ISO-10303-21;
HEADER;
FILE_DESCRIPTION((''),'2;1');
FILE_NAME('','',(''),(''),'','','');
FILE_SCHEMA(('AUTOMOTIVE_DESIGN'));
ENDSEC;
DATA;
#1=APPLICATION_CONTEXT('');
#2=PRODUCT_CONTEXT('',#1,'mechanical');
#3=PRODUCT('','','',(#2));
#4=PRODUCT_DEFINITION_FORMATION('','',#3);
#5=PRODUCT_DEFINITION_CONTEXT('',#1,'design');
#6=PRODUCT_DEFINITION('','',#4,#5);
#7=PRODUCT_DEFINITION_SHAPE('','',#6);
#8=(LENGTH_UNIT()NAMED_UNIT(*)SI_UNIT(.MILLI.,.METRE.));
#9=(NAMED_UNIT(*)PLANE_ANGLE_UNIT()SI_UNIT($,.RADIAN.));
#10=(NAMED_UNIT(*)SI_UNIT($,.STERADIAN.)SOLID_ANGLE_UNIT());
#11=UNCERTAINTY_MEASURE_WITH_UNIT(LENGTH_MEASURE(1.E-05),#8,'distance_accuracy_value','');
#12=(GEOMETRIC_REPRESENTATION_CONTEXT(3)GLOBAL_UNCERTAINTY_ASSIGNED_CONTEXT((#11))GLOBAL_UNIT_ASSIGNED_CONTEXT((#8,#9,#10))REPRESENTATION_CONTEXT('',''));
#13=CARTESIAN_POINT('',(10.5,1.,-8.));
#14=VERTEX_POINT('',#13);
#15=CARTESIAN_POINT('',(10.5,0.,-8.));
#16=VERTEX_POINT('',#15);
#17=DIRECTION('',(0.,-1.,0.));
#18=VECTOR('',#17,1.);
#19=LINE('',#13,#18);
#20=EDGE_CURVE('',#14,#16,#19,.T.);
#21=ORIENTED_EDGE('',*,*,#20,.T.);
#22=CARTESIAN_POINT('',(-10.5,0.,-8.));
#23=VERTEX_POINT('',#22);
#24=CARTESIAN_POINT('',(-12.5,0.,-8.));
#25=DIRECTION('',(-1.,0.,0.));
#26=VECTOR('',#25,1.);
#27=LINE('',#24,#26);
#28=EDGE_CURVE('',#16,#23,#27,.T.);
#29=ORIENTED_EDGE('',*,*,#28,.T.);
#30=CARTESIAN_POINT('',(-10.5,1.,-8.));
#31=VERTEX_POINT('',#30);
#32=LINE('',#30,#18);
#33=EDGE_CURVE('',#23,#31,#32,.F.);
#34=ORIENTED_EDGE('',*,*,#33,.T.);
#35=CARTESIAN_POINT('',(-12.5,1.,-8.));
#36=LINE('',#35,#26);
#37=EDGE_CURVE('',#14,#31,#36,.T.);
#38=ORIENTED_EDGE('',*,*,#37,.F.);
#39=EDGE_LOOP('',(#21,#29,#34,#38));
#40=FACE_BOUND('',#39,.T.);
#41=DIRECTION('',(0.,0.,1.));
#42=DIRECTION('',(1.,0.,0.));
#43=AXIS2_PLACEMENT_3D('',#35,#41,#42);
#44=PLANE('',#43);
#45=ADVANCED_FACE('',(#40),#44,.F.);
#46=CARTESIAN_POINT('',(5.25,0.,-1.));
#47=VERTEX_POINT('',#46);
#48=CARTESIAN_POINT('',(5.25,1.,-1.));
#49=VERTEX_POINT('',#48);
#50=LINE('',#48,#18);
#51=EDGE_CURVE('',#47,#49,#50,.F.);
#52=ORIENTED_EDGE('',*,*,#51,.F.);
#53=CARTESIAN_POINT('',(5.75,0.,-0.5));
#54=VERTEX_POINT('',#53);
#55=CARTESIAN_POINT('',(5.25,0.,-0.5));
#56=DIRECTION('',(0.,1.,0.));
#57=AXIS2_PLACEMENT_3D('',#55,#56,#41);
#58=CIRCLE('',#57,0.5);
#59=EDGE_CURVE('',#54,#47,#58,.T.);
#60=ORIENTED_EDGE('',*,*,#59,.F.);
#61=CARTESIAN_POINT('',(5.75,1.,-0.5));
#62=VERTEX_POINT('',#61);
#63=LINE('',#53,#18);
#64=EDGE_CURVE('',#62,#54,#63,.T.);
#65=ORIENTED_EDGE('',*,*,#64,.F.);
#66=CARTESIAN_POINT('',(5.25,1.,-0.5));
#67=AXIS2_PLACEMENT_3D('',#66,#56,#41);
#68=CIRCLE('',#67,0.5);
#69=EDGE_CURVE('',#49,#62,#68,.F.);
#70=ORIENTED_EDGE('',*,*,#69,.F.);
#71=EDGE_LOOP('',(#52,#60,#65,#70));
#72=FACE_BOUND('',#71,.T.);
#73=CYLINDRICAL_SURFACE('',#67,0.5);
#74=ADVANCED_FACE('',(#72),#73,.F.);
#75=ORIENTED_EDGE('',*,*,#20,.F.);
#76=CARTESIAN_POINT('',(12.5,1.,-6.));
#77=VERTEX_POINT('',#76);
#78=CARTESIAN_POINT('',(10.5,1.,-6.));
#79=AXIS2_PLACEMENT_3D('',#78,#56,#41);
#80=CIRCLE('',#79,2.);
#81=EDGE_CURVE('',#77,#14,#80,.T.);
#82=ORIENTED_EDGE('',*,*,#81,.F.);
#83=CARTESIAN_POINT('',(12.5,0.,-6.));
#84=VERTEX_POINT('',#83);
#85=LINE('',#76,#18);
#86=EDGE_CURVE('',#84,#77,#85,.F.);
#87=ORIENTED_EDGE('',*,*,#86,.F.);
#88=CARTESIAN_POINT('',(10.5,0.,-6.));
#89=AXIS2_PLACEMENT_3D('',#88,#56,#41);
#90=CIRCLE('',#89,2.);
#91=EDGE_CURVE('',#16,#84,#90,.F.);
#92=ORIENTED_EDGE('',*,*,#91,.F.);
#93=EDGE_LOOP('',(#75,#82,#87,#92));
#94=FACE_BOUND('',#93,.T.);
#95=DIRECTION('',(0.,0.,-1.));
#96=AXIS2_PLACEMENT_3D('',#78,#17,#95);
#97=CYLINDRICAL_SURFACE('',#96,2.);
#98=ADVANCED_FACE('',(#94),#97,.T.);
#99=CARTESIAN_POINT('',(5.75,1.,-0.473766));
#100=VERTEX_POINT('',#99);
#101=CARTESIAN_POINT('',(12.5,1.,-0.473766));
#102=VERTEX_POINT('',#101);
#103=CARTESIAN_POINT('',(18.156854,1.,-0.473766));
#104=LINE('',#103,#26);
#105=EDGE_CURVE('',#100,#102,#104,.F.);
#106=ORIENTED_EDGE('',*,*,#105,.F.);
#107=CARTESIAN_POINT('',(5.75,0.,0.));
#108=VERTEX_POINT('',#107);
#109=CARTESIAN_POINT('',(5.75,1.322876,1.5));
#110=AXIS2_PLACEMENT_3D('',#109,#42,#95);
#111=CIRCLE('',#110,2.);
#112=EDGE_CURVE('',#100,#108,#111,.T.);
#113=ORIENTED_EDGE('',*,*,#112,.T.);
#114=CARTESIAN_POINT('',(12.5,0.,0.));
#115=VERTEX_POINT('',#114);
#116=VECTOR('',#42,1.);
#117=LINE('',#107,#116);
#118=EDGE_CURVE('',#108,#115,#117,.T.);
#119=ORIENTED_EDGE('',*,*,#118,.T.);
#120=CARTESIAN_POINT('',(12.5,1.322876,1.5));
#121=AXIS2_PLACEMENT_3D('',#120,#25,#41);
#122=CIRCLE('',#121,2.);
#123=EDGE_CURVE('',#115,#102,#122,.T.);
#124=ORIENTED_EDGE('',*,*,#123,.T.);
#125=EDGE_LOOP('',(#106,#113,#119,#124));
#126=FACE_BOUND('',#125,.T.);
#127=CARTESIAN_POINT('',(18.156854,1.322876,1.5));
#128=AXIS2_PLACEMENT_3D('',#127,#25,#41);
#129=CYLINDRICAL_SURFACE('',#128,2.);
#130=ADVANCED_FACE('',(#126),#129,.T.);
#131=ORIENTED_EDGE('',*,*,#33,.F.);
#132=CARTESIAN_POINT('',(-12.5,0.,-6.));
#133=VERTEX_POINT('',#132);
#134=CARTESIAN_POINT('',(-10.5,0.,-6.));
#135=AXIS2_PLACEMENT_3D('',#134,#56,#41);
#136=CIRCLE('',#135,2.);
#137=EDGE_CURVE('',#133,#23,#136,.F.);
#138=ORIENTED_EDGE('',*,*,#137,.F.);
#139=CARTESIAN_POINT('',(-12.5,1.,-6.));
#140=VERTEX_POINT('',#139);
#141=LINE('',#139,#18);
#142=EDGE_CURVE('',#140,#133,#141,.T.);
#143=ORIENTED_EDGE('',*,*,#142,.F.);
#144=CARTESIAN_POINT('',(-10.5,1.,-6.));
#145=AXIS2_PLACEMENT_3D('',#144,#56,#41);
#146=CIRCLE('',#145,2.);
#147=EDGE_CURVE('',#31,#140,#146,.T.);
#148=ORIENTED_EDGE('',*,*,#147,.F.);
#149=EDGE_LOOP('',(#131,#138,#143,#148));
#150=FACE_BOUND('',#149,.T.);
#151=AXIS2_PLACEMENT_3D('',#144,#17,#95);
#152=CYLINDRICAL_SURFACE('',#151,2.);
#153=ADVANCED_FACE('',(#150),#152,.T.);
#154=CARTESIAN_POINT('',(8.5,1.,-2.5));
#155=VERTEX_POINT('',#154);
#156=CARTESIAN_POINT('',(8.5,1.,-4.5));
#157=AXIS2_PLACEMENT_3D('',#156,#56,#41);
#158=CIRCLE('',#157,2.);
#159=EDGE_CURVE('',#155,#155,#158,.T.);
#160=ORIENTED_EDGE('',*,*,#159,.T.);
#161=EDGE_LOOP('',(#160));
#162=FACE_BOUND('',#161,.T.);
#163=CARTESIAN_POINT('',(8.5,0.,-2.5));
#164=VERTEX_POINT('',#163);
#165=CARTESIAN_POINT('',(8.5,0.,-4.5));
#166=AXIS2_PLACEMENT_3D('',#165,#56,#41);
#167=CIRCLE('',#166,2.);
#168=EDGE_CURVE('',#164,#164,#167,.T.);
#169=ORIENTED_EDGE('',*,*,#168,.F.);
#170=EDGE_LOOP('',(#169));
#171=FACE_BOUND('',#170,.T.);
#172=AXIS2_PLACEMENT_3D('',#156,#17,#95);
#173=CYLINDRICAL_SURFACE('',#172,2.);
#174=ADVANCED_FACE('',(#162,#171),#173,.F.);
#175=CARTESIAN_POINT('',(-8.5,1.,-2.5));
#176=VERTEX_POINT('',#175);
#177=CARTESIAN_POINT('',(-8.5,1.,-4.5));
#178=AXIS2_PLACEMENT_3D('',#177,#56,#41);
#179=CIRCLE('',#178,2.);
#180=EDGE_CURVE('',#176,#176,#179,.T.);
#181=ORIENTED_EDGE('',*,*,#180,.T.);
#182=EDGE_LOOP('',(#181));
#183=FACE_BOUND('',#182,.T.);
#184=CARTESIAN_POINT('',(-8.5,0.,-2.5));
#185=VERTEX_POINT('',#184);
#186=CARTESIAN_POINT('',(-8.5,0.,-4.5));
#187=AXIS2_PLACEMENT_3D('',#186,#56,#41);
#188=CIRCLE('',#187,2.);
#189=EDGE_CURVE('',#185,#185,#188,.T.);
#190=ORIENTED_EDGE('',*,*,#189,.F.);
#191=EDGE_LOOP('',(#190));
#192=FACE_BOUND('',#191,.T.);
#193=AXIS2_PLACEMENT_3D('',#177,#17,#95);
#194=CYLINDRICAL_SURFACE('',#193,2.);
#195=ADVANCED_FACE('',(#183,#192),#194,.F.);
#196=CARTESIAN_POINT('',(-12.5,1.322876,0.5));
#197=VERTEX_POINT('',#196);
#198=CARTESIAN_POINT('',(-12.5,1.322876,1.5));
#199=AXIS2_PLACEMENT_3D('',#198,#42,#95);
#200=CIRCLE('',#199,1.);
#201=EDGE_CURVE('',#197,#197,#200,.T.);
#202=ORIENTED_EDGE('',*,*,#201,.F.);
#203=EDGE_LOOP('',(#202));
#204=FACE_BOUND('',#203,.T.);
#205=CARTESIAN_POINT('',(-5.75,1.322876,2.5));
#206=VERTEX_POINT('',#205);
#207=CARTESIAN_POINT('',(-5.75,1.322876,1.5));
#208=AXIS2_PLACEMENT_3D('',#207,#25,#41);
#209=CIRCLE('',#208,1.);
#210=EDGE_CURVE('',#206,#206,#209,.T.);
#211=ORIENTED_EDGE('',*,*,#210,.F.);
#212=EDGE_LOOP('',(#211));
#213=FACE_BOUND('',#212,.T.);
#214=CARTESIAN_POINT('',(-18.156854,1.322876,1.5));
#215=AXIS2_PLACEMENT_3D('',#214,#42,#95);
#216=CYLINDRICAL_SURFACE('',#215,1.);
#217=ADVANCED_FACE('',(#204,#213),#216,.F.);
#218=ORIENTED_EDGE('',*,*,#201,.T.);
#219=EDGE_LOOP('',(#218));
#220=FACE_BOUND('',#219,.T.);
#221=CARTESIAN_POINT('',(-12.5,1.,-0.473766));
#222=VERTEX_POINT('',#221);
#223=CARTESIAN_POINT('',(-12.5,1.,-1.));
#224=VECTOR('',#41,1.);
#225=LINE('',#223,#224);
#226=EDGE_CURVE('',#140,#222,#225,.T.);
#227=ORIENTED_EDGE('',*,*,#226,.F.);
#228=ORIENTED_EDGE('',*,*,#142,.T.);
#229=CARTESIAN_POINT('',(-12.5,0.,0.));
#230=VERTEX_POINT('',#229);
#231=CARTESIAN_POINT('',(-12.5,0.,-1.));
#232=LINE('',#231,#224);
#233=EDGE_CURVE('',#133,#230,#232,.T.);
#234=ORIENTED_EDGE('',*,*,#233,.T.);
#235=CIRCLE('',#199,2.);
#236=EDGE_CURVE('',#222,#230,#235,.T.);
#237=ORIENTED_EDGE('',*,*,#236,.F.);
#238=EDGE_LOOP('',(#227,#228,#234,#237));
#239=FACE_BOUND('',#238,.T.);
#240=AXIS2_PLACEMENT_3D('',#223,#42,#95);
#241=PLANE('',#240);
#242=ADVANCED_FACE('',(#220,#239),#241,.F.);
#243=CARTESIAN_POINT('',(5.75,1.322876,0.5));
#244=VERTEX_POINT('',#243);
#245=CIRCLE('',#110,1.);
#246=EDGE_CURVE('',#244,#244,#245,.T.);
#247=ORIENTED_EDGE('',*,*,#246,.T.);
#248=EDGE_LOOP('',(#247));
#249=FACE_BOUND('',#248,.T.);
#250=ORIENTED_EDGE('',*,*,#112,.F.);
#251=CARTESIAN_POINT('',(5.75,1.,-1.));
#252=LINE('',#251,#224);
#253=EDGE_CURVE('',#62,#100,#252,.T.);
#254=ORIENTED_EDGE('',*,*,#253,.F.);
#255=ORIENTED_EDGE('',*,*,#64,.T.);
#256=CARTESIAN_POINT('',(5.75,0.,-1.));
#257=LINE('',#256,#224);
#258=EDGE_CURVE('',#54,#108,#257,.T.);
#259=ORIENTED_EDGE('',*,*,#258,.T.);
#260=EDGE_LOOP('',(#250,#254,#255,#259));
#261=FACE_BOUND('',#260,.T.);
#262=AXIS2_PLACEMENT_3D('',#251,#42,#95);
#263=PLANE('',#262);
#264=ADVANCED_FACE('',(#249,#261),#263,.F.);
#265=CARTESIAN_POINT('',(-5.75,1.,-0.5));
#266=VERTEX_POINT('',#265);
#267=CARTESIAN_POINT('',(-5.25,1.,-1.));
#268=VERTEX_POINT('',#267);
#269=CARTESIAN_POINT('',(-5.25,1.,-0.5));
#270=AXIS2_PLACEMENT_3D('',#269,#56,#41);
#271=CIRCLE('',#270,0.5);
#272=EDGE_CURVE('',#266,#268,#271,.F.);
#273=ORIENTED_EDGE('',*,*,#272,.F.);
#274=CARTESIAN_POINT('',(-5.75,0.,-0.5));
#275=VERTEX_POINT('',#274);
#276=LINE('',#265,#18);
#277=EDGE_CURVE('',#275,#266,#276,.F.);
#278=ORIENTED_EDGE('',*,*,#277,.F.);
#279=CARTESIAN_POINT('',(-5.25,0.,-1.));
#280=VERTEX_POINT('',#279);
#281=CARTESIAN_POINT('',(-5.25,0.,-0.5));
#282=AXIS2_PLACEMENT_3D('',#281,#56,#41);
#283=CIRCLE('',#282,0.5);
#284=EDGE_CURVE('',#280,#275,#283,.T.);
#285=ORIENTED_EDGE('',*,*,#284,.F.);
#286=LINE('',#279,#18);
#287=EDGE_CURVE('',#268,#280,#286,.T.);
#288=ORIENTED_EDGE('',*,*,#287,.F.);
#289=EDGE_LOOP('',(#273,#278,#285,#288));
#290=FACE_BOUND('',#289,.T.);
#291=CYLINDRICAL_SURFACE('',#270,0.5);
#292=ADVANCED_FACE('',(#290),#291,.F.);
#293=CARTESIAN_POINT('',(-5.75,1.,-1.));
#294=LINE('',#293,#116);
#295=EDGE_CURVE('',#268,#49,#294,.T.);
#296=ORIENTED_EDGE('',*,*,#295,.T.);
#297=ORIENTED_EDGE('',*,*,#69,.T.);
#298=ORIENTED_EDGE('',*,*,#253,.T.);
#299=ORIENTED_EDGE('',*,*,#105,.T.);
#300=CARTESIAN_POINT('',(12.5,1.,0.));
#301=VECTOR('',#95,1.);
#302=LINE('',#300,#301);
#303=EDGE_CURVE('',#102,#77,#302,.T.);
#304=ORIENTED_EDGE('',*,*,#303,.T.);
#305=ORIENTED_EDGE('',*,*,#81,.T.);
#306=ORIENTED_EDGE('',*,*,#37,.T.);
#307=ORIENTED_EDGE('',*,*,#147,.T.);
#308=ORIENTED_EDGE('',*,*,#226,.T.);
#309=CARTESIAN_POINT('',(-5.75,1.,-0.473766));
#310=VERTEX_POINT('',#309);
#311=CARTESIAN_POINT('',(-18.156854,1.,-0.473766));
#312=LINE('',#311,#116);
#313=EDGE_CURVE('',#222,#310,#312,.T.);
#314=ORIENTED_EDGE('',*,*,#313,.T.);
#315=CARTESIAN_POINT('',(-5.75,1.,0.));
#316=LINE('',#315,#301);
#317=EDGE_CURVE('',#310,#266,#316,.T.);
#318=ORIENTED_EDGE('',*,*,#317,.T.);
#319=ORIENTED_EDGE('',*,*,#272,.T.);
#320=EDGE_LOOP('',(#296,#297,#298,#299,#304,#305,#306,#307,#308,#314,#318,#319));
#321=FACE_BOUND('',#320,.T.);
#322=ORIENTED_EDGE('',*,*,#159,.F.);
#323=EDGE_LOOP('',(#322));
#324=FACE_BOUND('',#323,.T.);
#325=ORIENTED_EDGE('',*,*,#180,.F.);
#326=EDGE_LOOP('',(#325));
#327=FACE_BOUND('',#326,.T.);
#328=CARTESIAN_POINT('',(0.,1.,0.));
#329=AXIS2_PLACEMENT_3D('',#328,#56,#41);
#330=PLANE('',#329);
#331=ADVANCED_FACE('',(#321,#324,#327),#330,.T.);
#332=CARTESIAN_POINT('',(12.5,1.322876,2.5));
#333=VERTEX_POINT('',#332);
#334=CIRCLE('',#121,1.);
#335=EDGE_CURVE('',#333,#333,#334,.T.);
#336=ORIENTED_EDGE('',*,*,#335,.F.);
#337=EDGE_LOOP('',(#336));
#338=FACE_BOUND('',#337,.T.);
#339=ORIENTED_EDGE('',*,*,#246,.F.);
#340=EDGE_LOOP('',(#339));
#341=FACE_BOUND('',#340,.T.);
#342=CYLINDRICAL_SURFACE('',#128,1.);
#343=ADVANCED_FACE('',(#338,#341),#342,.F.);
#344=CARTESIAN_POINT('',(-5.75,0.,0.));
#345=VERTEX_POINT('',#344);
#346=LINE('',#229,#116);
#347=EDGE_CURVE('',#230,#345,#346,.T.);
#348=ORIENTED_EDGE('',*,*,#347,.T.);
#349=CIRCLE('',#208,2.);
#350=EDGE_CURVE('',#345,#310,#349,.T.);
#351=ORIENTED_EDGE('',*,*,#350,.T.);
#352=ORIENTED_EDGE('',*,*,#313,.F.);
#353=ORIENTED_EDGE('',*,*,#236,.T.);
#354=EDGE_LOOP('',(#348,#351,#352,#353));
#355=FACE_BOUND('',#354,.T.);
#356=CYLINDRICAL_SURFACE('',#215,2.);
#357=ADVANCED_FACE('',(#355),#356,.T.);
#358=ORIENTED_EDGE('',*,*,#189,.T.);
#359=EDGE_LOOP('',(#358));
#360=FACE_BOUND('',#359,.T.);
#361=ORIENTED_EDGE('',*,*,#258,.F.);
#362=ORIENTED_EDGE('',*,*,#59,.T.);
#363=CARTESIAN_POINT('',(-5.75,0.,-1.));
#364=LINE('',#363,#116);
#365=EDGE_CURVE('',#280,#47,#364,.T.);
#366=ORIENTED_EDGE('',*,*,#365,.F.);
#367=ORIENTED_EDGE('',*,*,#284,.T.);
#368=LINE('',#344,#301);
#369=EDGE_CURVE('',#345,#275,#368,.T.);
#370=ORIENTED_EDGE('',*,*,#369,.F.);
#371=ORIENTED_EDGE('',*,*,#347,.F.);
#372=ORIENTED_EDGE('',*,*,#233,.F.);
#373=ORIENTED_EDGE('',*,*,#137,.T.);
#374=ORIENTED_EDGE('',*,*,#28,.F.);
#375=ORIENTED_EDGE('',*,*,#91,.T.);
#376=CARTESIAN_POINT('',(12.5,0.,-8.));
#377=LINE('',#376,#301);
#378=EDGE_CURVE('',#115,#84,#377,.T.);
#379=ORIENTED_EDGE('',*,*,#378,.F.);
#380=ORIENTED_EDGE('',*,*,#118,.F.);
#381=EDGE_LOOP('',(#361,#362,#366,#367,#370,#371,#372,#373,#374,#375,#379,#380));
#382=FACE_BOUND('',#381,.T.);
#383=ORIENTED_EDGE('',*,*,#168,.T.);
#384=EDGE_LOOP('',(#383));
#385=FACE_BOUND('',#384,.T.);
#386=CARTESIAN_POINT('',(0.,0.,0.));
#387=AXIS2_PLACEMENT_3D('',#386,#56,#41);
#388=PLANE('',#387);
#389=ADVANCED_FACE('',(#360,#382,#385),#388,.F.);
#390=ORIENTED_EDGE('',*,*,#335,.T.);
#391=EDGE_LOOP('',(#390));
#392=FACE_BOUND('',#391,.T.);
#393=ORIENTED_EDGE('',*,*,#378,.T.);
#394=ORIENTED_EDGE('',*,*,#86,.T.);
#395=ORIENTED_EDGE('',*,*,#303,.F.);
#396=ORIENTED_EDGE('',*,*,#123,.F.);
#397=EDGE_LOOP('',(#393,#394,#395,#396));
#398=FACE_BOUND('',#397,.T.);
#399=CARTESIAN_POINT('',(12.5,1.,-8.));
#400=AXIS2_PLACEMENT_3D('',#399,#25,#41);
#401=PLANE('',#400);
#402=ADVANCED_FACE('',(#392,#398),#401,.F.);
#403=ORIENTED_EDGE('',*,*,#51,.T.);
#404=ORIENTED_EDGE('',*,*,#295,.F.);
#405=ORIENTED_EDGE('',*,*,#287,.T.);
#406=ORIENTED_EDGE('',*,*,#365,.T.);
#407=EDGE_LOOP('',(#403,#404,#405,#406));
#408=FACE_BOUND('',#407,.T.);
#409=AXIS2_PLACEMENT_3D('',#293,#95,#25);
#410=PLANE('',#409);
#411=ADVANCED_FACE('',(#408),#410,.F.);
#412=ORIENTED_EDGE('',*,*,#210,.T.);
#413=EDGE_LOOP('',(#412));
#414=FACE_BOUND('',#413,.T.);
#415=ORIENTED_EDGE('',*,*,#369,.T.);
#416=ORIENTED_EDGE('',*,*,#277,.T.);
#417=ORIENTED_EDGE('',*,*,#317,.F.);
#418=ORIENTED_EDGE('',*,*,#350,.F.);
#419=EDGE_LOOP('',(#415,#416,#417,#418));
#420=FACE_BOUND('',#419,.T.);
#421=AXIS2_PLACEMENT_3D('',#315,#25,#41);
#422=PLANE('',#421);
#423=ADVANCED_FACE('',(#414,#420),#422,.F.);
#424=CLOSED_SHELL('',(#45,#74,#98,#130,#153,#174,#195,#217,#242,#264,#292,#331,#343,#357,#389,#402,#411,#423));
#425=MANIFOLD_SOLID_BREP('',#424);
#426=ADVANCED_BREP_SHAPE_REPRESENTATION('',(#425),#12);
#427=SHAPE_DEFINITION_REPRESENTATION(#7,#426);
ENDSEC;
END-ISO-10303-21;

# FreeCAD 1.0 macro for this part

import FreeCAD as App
import Part
import Sketcher


def edges_at(feature, points):
    """Names of the edges that pass closest to the given points."""
    edges = feature.Shape.Edges
    near = lambda p: min(range(len(edges)), key=lambda i: edges[i].distToShape(Part.Vertex(*p))[0])
    return sorted({f"Edge{near(p) + 1}" for p in points})

doc = App.newDocument("Part")
body = doc.addObject("PartDesign::Body", "Body")

sketch1 = body.newObject("Sketcher::SketchObject", "Sketch")
sketch1.AttachmentSupport = (doc.getObject("XZ_Plane"), [""])
sketch1.MapMode = "FlatFace"
sketch1.addGeometry([
    Part.LineSegment(App.Vector(-5.75, 0, 0), App.Vector(-5.75, -1, 0)),
    Part.LineSegment(App.Vector(-5.75, -1, 0), App.Vector(5.75, -1, 0)),
    Part.LineSegment(App.Vector(5.75, -1, 0), App.Vector(5.75, 0, 0)),
    Part.LineSegment(App.Vector(5.75, 0, 0), App.Vector(12.5, 0, 0)),
    Part.LineSegment(App.Vector(12.5, 0, 0), App.Vector(12.5, -8, 0)),
    Part.LineSegment(App.Vector(12.5, -8, 0), App.Vector(-12.5, -8, 0)),
    Part.LineSegment(App.Vector(-12.5, -8, 0), App.Vector(-12.5, 0, 0)),
    Part.LineSegment(App.Vector(-12.5, 0, 0), App.Vector(-5.75, 0, 0)),
    Part.Circle(App.Vector(-8.5, -4.5, 0), App.Vector(0, 0, 1), 2),
    Part.Circle(App.Vector(8.5, -4.5, 0), App.Vector(0, 0, 1), 2),
], False)
sketch1.addConstraint([
    Sketcher.Constraint("Coincident", 0, 2, 1, 1),
    Sketcher.Constraint("Coincident", 1, 2, 2, 1),
    Sketcher.Constraint("Coincident", 2, 2, 3, 1),
    Sketcher.Constraint("Coincident", 3, 2, 4, 1),
    Sketcher.Constraint("Coincident", 4, 2, 5, 1),
    Sketcher.Constraint("Coincident", 5, 2, 6, 1),
    Sketcher.Constraint("Coincident", 6, 2, 7, 1),
    Sketcher.Constraint("Coincident", 7, 2, 0, 1),
    Sketcher.Constraint("Vertical", 0),
    Sketcher.Constraint("Horizontal", 1),
    Sketcher.Constraint("Vertical", 2),
    Sketcher.Constraint("Horizontal", 3),
    Sketcher.Constraint("Vertical", 4),
    Sketcher.Constraint("Horizontal", 5),
    Sketcher.Constraint("Vertical", 6),
    Sketcher.Constraint("Horizontal", 7),
    Sketcher.Constraint("Equal", 8, 9),
    Sketcher.Constraint("Symmetric", 3, 2, 6, 2, -1, 1),
    Sketcher.Constraint("Symmetric", 8, 3, 9, 3, -2),
    Sketcher.Constraint("Symmetric", 2, 2, 7, 2, -2),
    Sketcher.Constraint("Diameter", 8, 4.0),
    Sketcher.Constraint("DistanceX", 5, 2, 5, 1, 25.0),
    Sketcher.Constraint("DistanceY", 0, 2, 0, 1, 1.0),
    Sketcher.Constraint("DistanceY", 4, 2, 4, 1, 8.0),
    Sketcher.Constraint("DistanceX", 1, 1, 1, 2, 11.5),
    Sketcher.Constraint("DistanceX", 8, 3, 9, 3, 17.0),
    Sketcher.Constraint("DistanceY", 8, 3, -1, 1, 4.5),
])
pad1 = body.newObject("PartDesign::Pad", "Pad")
pad1.Profile = sketch1
pad1.Length = 1
pad1.Reversed = True
doc.recompute()

fillet = body.newObject("PartDesign::Fillet", "Fillet")
fillet.Base = (pad1, edges_at(pad1, [(-12.5, 0.5, -8), (12.5, 0.5, -8)]))
fillet.Radius = 2
doc.recompute()

fillet2 = body.newObject("PartDesign::Fillet", "Fillet001")
fillet2.Base = (fillet, edges_at(fillet, [(5.75, 0.5, -1), (-5.75, 0.5, -1)]))
fillet2.Radius = 0.5

sketch2 = body.newObject("Sketcher::SketchObject", "Sketch001")
sketch2.AttachmentSupport = (doc.getObject("YZ_Plane"), [""])
sketch2.MapMode = "FlatFace"
sketch2.AttachmentOffset = App.Placement(App.Vector(0, 0, -5.75), App.Rotation())
sketch2.addGeometry([
    Part.Circle(App.Vector(1.322876, 1.5, 0), App.Vector(0, 0, 1), 2),
    Part.Circle(App.Vector(1.322876, 1.5, 0), App.Vector(0, 0, 1), 1),
], False)
sketch2.addConstraint([
    Sketcher.Constraint("Coincident", 1, 3, 0, 3),
    Sketcher.Constraint("Diameter", 0, 4.0),
    Sketcher.Constraint("Diameter", 1, 2.0),
    Sketcher.Constraint("DistanceY", -1, 1, 0, 3, 1.5),
    Sketcher.Constraint("DistanceX", -1, 1, 0, 3, 1.322876),
])
pad2 = body.newObject("PartDesign::Pad", "Pad001")
pad2.Profile = sketch2
pad2.Length = 6.75
pad2.Reversed = True

sketch3 = body.newObject("Sketcher::SketchObject", "Sketch002")
sketch3.AttachmentSupport = (doc.getObject("YZ_Plane"), [""])
sketch3.MapMode = "FlatFace"
sketch3.AttachmentOffset = App.Placement(App.Vector(0, 0, 12.5), App.Rotation())
sketch3.addGeometry([
    Part.Circle(App.Vector(1.322876, 1.5, 0), App.Vector(0, 0, 1), 2),
    Part.Circle(App.Vector(1.322876, 1.5, 0), App.Vector(0, 0, 1), 1),
], False)
sketch3.addConstraint([
    Sketcher.Constraint("Coincident", 1, 3, 0, 3),
    Sketcher.Constraint("Diameter", 0, 4.0),
    Sketcher.Constraint("Diameter", 1, 2.0),
    Sketcher.Constraint("DistanceY", -1, 1, 0, 3, 1.5),
    Sketcher.Constraint("DistanceX", -1, 1, 0, 3, 1.322876),
])
pad3 = body.newObject("PartDesign::Pad", "Pad002")
pad3.Profile = sketch3
pad3.Length = 6.75
pad3.Reversed = True

doc.recompute()
